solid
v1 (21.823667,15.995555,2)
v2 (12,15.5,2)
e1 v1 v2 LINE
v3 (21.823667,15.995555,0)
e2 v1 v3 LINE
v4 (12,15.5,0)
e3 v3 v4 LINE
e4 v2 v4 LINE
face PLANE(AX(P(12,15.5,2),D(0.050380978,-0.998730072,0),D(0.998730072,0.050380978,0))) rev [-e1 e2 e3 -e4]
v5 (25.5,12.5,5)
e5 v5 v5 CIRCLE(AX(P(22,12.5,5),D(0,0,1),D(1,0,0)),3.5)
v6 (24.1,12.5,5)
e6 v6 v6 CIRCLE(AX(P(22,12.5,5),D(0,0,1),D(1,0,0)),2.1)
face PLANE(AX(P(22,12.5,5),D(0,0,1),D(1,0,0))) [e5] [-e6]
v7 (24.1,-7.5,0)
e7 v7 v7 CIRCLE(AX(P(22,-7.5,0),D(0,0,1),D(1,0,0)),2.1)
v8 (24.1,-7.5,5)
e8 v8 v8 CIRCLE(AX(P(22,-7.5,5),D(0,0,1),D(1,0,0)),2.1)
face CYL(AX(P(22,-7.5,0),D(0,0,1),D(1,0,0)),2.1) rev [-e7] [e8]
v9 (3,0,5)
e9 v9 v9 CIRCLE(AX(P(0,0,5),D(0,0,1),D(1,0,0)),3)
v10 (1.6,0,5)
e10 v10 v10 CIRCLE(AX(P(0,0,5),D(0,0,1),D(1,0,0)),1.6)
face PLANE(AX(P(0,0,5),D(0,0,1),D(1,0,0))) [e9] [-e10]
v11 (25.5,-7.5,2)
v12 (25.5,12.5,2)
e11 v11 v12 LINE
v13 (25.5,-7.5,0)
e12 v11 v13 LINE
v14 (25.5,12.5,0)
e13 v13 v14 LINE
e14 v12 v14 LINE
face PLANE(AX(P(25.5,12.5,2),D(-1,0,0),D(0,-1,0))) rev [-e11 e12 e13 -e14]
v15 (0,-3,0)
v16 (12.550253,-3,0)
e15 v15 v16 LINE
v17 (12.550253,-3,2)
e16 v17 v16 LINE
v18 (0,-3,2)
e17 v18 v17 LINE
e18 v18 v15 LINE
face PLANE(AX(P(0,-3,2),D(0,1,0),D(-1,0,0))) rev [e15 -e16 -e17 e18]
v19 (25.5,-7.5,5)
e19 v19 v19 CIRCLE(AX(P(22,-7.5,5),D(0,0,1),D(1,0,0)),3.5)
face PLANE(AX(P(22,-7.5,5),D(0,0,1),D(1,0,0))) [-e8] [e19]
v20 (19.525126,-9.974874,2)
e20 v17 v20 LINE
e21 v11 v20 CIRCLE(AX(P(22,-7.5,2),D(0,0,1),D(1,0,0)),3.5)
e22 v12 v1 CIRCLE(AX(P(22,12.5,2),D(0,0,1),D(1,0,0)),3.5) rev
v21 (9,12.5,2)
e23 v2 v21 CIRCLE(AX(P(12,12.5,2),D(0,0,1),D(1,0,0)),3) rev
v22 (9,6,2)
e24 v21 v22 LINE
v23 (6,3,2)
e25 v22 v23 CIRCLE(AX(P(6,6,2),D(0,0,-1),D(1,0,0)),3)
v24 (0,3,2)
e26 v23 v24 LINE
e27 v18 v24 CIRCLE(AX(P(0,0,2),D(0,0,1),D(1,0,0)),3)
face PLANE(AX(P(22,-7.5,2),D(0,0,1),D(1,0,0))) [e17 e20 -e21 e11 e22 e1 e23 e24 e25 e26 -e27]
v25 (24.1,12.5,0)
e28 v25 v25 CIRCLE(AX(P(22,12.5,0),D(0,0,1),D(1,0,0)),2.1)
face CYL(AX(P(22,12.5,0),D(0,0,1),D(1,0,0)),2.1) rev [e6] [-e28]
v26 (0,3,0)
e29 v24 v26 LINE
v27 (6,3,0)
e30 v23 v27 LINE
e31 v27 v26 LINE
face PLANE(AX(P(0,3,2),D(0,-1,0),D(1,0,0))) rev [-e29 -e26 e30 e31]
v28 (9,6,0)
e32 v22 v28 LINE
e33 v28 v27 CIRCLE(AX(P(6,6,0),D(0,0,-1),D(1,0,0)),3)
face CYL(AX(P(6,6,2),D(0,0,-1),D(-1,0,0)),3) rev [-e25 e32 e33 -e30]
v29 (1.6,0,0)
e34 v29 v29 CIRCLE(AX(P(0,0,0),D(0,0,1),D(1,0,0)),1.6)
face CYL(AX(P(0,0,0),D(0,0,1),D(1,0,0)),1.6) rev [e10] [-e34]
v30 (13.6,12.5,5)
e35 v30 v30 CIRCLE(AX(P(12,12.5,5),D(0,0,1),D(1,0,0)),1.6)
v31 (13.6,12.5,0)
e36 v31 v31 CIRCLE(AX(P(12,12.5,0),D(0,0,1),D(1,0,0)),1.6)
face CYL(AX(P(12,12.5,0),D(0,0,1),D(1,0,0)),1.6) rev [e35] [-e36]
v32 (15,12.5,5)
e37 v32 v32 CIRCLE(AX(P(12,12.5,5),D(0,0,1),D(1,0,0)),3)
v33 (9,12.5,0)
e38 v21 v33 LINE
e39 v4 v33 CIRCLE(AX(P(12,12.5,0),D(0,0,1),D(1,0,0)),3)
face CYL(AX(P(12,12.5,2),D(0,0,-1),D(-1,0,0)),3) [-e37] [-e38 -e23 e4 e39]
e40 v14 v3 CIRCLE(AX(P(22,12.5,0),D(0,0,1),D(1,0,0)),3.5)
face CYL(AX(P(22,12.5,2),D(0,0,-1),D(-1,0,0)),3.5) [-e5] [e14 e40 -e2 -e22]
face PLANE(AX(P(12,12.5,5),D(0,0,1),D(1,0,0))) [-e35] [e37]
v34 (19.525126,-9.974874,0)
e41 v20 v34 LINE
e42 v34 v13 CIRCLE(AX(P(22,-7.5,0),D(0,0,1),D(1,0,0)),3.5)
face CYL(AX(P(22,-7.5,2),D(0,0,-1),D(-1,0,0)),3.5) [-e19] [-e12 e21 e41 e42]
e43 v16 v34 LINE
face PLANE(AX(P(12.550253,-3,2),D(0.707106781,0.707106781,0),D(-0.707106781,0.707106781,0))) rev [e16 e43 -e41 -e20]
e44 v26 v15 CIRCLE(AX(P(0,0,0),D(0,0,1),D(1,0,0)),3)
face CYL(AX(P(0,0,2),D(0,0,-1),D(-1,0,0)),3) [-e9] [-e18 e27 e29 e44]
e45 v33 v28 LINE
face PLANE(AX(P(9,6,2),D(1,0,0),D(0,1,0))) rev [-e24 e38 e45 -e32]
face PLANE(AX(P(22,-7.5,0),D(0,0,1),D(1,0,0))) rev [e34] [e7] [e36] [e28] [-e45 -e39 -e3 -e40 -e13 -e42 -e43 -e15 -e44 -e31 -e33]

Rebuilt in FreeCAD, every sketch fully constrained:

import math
import FreeCAD as App
import Part
import Sketcher
Q = App.Units.Quantity

doc = App.newDocument("Part")
params = doc.addObject("Spreadsheet::Sheet", "Params")
for row, (alias, value) in enumerate([
    ("sketch1_radius", "3 mm"),
    ("sketch1_radius2", "3.5 mm"),
    ("sketch1_width", "6 mm"),
    ("sketch1_height", "20 mm"),
    ("sketch1_height2", "6.5 mm"),
    ("pad1_length", "2 mm"),
    ("sketch2_diameter", "6 mm"),
    ("sketch2_diameter2", "7 mm"),
    ("pad2_length", "3 mm"),
    ("sketch3_diameter", "3.2 mm"),
    ("sketch3_diameter2", "4.2 mm"),
], start=1):
    params.set(f"A{row}", alias)
    params.set(f"B{row}", "=" + value)
    params.setAlias(f"B{row}", alias)

body = doc.addObject("PartDesign::Body", "Body")

# Sketch on XY plane
sketch1 = body.newObject("Sketcher::SketchObject", "Sketch")
sketch1.AttachmentSupport = (doc.getObject("XY_Plane"), [""])
sketch1.MapMode = "FlatFace"
sketch1.addGeometry([
    Part.LineSegment(App.Vector(6, 3, 0), App.Vector(0, 3, 0)),  # 0
    Part.ArcOfCircle(Part.Circle(App.Vector(0, 0, 0), App.Vector(0, 0, 1), 3), math.radians(90), math.radians(270)),  # 1
    Part.LineSegment(App.Vector(0, -3, 0), App.Vector(12.6, -3, 0)),  # 2
    Part.LineSegment(App.Vector(12.6, -3, 0), App.Vector(19.5, -10, 0)),  # 3
    Part.ArcOfCircle(Part.Circle(App.Vector(22, -7.5, 0), App.Vector(0, 0, 1), 3.5), math.radians(-135), math.radians(0)),  # 4
    Part.LineSegment(App.Vector(25.5, -7.5, 0), App.Vector(25.5, 12.5, 0)),  # 5
    Part.ArcOfCircle(Part.Circle(App.Vector(22, 12.5, 0), App.Vector(0, 0, 1), 3.5), math.radians(0), math.radians(93)),  # 6
    Part.LineSegment(App.Vector(21.8, 16, 0), App.Vector(12, 15.5, 0)),  # 7
    Part.ArcOfCircle(Part.Circle(App.Vector(12, 12.5, 0), App.Vector(0, 0, 1), 3), math.radians(90), math.radians(180)),  # 8
    Part.LineSegment(App.Vector(9, 12.5, 0), App.Vector(9, 6, 0)),  # 9
    Part.ArcOfCircle(Part.Circle(App.Vector(6, 6, 0), App.Vector(0, 0, 1), 3), math.radians(-90), math.radians(0)),  # 10
], False)
sketch1.addConstraint([
    Sketcher.Constraint("Tangent", 0, 2, 1, 1),
    Sketcher.Constraint("Tangent", 1, 2, 2, 1),
    Sketcher.Constraint("Coincident", 2, 2, 3, 1),
    Sketcher.Constraint("Tangent", 3, 2, 4, 1),
    Sketcher.Constraint("Tangent", 4, 2, 5, 1),
    Sketcher.Constraint("Tangent", 5, 2, 6, 1),
    Sketcher.Constraint("Tangent", 6, 2, 7, 1),
    Sketcher.Constraint("Coincident", 7, 2, 8, 1),
    Sketcher.Constraint("Tangent", 8, 2, 9, 1),
    Sketcher.Constraint("Tangent", 9, 2, 10, 2),
    Sketcher.Constraint("Tangent", 10, 1, 0, 1),
    Sketcher.Constraint("Horizontal", 0),
    Sketcher.Constraint("Horizontal", 2),
    Sketcher.Constraint("Vertical", 5),
    Sketcher.Constraint("Vertical", 9),
    Sketcher.Constraint("Coincident", 1, 3, -1, 1),
    Sketcher.Constraint("Equal", 4, 6),
    Sketcher.Constraint("Equal", 1, 8),
    Sketcher.Constraint("Equal", 8, 10),
    Sketcher.Constraint("Horizontal", 6, 3, 8, 3),
    Sketcher.Constraint("Vertical", 8, 3, 7, 2),
    Sketcher.Constraint("Radius", 1, Q("3 mm")),
    Sketcher.Constraint("Radius", 4, Q("3.5 mm")),
    Sketcher.Constraint("DistanceX", 0, 2, 0, 1, Q("6 mm")),
    Sketcher.Constraint("DistanceY", 5, 1, 5, 2, Q("20 mm")),
    Sketcher.Constraint("Angle", 3, Q("-45 deg")),
    Sketcher.Constraint("DistanceY", 9, 2, 9, 1, Q("6.5 mm")),
    Sketcher.Constraint("DistanceX", -1, 1, 4, 3, Q("22 mm")),
])
sketch1.setExpression("Constraints[21]", "Params.sketch1_radius")
sketch1.setExpression("Constraints[22]", "Params.sketch1_radius2")
sketch1.setExpression("Constraints[23]", "Params.sketch1_width")
sketch1.setExpression("Constraints[24]", "Params.sketch1_height")
sketch1.setExpression("Constraints[26]", "Params.sketch1_height2")
pad1 = body.newObject("PartDesign::Pad", "Pad")
pad1.Profile = sketch1
pad1.setExpression("Length", "Params.pad1_length")

# Sketch on XY plane
sketch2 = body.newObject("Sketcher::SketchObject", "Sketch001")
sketch2.AttachmentSupport = (doc.getObject("XY_Plane"), [""])
sketch2.MapMode = "FlatFace"
sketch2.AttachmentOffset = App.Placement(App.Vector(0, 0, 2), App.Rotation())
sketch2.addGeometry([
    Part.Circle(App.Vector(0, 0, 0), App.Vector(0, 0, 1), 3),
    Part.Circle(App.Vector(12, 12.5, 0), App.Vector(0, 0, 1), 3),
    Part.Circle(App.Vector(22, 12.5, 0), App.Vector(0, 0, 1), 3.5),
    Part.Circle(App.Vector(22, -7.5, 0), App.Vector(0, 0, 1), 3.5),
], False)
sketch2.addConstraint([
    Sketcher.Constraint("Coincident", 0, 3, -1, 1),
    Sketcher.Constraint("Equal", 0, 1),
    Sketcher.Constraint("Equal", 2, 3),
    Sketcher.Constraint("Horizontal", 1, 3, 2, 3),
    Sketcher.Constraint("Vertical", 2, 3, 3, 3),
    Sketcher.Constraint("Diameter", 0, Q("6 mm")),
    Sketcher.Constraint("Diameter", 2, Q("7 mm")),
    Sketcher.Constraint("DistanceX", -1, 1, 1, 3, Q("12 mm")),
    Sketcher.Constraint("DistanceX", -1, 1, 2, 3, Q("22 mm")),
    Sketcher.Constraint("DistanceY", 3, 3, 2, 3, Q("20 mm")),
    Sketcher.Constraint("DistanceY", -1, 1, 1, 3, Q("12.5 mm")),
])
sketch2.setExpression("Constraints[5]", "Params.sketch2_diameter")
sketch2.setExpression("Constraints[6]", "Params.sketch2_diameter2")
pad2 = body.newObject("PartDesign::Pad", "Pad001")
pad2.Profile = sketch2
pad2.setExpression("Length", "Params.pad2_length")

# Sketch on XY plane
sketch3 = body.newObject("Sketcher::SketchObject", "Sketch002")
sketch3.AttachmentSupport = (doc.getObject("XY_Plane"), [""])
sketch3.MapMode = "FlatFace"
sketch3.AttachmentOffset = App.Placement(App.Vector(0, 0, 5), App.Rotation())
sketch3.addGeometry([
    Part.Circle(App.Vector(0, 0, 0), App.Vector(0, 0, 1), 1.6),
    Part.Circle(App.Vector(12, 12.5, 0), App.Vector(0, 0, 1), 1.6),
    Part.Circle(App.Vector(22, 12.5, 0), App.Vector(0, 0, 1), 2.1),
    Part.Circle(App.Vector(22, -7.5, 0), App.Vector(0, 0, 1), 2.1),
], False)
sketch3.addConstraint([
    Sketcher.Constraint("Coincident", 0, 3, -1, 1),
    Sketcher.Constraint("Equal", 0, 1),
    Sketcher.Constraint("Equal", 2, 3),
    Sketcher.Constraint("Horizontal", 1, 3, 2, 3),
    Sketcher.Constraint("Vertical", 2, 3, 3, 3),
    Sketcher.Constraint("Diameter", 0, Q("3.2 mm")),
    Sketcher.Constraint("Diameter", 2, Q("4.2 mm")),
    Sketcher.Constraint("DistanceX", -1, 1, 1, 3, Q("12 mm")),
    Sketcher.Constraint("DistanceX", -1, 1, 2, 3, Q("22 mm")),
    Sketcher.Constraint("DistanceY", 3, 3, 2, 3, Q("20 mm")),
    Sketcher.Constraint("DistanceY", -1, 1, 1, 3, Q("12.5 mm")),
])
sketch3.setExpression("Constraints[5]", "Params.sketch3_diameter")
sketch3.setExpression("Constraints[6]", "Params.sketch3_diameter2")
pocket1 = body.newObject("PartDesign::Pocket", "Pocket")
pocket1.Profile = sketch3
pocket1.Type = "ThroughAll"

doc.recompute()
